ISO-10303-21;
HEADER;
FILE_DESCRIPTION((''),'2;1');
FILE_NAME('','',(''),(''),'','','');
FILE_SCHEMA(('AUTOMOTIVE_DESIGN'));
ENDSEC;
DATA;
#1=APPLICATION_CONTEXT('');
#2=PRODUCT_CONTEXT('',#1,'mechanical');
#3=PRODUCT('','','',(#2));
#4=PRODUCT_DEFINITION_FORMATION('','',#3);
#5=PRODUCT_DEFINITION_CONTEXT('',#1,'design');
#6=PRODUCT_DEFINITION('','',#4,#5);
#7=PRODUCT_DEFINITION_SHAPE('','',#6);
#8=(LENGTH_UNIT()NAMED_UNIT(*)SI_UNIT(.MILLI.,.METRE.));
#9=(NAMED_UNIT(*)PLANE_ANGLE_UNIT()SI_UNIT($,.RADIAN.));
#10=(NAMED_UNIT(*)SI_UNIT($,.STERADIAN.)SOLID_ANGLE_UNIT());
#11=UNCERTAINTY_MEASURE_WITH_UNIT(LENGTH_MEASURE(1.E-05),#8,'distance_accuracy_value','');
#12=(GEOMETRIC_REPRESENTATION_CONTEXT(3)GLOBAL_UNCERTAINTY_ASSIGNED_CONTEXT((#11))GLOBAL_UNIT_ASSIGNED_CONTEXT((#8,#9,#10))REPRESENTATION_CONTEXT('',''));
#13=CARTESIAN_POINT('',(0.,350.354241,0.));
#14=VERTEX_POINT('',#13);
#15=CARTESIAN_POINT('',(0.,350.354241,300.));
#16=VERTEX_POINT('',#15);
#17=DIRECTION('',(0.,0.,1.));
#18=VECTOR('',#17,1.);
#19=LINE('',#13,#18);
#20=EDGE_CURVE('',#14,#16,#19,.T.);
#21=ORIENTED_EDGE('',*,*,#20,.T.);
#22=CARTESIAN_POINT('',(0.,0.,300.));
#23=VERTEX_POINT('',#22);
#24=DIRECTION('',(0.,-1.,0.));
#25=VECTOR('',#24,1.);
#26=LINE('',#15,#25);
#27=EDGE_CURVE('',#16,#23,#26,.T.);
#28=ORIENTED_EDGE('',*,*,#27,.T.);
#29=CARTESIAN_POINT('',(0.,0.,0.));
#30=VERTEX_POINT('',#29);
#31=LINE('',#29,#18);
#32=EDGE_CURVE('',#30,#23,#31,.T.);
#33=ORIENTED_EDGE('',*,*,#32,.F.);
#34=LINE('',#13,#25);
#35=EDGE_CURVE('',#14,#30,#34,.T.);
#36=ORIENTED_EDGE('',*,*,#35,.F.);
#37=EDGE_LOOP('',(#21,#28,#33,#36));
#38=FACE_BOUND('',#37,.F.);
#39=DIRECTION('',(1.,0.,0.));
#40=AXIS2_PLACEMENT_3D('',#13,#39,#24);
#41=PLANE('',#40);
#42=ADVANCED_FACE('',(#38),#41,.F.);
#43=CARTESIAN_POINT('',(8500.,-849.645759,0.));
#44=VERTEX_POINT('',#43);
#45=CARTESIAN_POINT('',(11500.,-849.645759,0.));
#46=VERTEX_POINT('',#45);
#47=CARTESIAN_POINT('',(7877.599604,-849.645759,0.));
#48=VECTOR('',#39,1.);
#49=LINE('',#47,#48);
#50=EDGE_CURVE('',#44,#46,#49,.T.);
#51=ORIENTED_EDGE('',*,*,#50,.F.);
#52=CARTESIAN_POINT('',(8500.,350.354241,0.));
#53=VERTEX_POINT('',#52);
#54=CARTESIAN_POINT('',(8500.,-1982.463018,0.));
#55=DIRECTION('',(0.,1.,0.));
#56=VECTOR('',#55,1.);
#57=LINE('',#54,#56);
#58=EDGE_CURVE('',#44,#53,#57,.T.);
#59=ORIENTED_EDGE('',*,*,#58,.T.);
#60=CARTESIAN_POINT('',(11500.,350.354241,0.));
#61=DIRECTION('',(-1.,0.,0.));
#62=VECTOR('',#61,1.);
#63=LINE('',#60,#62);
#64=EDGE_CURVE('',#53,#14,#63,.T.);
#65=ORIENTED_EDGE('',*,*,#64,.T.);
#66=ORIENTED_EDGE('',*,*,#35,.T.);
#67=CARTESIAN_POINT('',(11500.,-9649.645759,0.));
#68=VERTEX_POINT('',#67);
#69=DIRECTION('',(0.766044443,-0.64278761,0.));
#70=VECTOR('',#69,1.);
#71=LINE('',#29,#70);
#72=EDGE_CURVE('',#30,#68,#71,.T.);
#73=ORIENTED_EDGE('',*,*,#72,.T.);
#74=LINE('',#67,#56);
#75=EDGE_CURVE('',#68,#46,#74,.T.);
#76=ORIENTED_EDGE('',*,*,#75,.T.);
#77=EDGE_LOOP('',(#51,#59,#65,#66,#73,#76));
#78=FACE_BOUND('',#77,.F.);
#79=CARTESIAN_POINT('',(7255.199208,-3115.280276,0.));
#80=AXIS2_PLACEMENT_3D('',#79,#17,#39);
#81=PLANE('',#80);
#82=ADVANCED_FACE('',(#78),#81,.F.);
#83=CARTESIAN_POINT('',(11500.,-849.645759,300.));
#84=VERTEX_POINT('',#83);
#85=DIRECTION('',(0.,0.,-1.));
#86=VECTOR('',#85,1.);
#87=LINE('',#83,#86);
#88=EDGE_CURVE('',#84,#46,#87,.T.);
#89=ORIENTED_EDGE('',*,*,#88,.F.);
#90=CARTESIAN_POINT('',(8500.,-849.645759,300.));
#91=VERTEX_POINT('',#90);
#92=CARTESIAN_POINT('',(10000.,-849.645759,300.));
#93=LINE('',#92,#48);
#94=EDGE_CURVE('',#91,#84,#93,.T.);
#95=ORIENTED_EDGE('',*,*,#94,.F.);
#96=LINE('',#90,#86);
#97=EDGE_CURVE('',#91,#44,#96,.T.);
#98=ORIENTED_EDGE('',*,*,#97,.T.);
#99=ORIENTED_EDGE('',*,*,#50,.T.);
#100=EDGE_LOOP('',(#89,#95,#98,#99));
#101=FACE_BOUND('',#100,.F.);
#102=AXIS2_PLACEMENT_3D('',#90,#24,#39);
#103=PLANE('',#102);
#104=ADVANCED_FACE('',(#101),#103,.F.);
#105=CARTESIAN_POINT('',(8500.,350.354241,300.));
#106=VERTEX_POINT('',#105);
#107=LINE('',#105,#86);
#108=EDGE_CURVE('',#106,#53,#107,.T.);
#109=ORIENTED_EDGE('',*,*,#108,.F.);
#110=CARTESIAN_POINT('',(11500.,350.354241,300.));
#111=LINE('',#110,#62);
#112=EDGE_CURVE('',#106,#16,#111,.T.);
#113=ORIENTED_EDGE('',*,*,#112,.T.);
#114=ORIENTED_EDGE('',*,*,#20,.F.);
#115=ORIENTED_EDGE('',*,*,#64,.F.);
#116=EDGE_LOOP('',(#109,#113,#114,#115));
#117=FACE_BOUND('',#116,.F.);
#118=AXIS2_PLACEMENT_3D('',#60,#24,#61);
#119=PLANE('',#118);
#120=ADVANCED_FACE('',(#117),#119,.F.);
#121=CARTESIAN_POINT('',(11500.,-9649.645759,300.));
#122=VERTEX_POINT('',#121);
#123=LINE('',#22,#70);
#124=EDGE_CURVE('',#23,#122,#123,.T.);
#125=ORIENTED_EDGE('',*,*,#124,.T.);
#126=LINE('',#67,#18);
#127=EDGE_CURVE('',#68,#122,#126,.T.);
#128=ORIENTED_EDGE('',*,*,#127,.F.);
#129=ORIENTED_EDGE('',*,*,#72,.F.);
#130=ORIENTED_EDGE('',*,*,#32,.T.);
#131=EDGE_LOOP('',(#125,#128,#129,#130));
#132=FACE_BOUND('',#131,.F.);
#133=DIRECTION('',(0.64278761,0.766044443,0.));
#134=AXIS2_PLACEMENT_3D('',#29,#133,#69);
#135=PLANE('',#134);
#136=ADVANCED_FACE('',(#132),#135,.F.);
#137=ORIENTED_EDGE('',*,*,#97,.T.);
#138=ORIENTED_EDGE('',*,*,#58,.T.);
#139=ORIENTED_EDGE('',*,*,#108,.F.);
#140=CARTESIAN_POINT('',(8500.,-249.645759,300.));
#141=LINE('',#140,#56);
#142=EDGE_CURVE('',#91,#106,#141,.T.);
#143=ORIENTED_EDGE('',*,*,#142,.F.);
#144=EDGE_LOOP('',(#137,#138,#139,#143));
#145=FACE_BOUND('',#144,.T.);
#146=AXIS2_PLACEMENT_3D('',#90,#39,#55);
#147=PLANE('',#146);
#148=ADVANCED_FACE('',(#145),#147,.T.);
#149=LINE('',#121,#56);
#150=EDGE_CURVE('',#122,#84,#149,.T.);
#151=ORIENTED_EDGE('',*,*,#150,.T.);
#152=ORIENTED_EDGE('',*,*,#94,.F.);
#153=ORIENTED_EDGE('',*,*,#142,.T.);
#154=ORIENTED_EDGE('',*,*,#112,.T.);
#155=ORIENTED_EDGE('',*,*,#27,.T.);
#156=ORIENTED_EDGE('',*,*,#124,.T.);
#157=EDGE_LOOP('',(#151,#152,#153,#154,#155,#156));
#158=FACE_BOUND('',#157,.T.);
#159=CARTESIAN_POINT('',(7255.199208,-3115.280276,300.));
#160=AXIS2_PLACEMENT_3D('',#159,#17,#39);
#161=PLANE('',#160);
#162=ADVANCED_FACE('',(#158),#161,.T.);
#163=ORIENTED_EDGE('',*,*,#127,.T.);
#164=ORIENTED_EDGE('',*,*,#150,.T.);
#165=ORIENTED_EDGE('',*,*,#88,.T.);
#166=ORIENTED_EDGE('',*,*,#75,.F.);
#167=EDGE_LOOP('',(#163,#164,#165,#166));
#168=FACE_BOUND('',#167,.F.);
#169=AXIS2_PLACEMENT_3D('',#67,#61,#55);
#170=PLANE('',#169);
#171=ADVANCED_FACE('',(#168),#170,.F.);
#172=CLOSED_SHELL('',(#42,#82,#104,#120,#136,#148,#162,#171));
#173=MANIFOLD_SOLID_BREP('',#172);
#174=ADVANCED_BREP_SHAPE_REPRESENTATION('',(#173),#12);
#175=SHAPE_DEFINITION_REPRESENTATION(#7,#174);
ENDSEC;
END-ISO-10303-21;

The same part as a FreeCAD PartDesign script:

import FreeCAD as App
import Part
import Sketcher
from FreeCAD import Vector
Q = App.Units.Quantity


def add_polygon(sketch, points):
    """Adds a closed chain of lines whose ends are joined by coincident constraints."""
    first, n = sketch.GeometryCount, len(points)
    for a, b in zip(points, points[1:] + points[:1]):
        sketch.addGeometry(Part.LineSegment(App.Vector(*a, 0), App.Vector(*b, 0)), False)
    for i in range(n):
        sketch.addConstraint(Sketcher.Constraint("Coincident", first + i, 2, first + (i + 1) % n, 1))

doc = App.newDocument("Part")
body = doc.addObject("PartDesign::Body", "Body")

# Sketch on XY plane
sketch1 = body.newObject("Sketcher::SketchObject", "Sketch")
sketch1.AttachmentSupport = (doc.getObject("XY_Plane"), [""])
sketch1.MapMode = "FlatFace"
add_polygon(sketch1, [(0, 350.354241), (0, 0), (11500, -9649.645759), (11500, 350.354241)])  # lines 0-3
sketch1.addConstraint([
    Sketcher.Constraint("Vertical", 0),
    Sketcher.Constraint("Vertical", 2),
    Sketcher.Constraint("Horizontal", 3),
    Sketcher.Constraint("Coincident", 0, 2, -1, 1),
    Sketcher.Constraint("DistanceX", 3, 2, 3, 1, Q("11500 mm")),
    Sketcher.Constraint("DistanceY", 2, 1, 2, 2, Q("10000 mm")),
    Sketcher.Constraint("Angle", 1, Q("-40 deg")),
])
pad1 = body.newObject("PartDesign::Pad", "Pad")
pad1.Profile = sketch1
pad1.Length = 300

# Sketch on XY plane
sketch2 = body.newObject("Sketcher::SketchObject", "Sketch001")
sketch2.AttachmentSupport = (doc.getObject("XY_Plane"), [""])
sketch2.MapMode = "FlatFace"
sketch2.AttachmentOffset = App.Placement(Vector(0, 0, 300), App.Rotation())
add_polygon(sketch2, [(8500, 350.354241), (8500, -849.645759), (11500, -849.645759), (11500, 350.354241)])  # lines 0-3
sketch2.addConstraint([
    Sketcher.Constraint("Vertical", 0),
    Sketcher.Constraint("Horizontal", 1),
    Sketcher.Constraint("Vertical", 2),
    Sketcher.Constraint("Horizontal", 3),
    Sketcher.Constraint("DistanceX", 1, 1, 1, 2, Q("3000 mm")),
    Sketcher.Constraint("DistanceY", 0, 2, 0, 1, Q("1200 mm")),
    Sketcher.Constraint("DistanceX", -1, 1, 0, 2, Q("8500 mm")),
    Sketcher.Constraint("DistanceY", 0, 2, -1, 1, Q("849.645759 mm")),
])
pocket1 = body.newObject("PartDesign::Pocket", "Pocket")
pocket1.Profile = sketch2
pocket1.Type = "ThroughAll"

doc.recompute()
